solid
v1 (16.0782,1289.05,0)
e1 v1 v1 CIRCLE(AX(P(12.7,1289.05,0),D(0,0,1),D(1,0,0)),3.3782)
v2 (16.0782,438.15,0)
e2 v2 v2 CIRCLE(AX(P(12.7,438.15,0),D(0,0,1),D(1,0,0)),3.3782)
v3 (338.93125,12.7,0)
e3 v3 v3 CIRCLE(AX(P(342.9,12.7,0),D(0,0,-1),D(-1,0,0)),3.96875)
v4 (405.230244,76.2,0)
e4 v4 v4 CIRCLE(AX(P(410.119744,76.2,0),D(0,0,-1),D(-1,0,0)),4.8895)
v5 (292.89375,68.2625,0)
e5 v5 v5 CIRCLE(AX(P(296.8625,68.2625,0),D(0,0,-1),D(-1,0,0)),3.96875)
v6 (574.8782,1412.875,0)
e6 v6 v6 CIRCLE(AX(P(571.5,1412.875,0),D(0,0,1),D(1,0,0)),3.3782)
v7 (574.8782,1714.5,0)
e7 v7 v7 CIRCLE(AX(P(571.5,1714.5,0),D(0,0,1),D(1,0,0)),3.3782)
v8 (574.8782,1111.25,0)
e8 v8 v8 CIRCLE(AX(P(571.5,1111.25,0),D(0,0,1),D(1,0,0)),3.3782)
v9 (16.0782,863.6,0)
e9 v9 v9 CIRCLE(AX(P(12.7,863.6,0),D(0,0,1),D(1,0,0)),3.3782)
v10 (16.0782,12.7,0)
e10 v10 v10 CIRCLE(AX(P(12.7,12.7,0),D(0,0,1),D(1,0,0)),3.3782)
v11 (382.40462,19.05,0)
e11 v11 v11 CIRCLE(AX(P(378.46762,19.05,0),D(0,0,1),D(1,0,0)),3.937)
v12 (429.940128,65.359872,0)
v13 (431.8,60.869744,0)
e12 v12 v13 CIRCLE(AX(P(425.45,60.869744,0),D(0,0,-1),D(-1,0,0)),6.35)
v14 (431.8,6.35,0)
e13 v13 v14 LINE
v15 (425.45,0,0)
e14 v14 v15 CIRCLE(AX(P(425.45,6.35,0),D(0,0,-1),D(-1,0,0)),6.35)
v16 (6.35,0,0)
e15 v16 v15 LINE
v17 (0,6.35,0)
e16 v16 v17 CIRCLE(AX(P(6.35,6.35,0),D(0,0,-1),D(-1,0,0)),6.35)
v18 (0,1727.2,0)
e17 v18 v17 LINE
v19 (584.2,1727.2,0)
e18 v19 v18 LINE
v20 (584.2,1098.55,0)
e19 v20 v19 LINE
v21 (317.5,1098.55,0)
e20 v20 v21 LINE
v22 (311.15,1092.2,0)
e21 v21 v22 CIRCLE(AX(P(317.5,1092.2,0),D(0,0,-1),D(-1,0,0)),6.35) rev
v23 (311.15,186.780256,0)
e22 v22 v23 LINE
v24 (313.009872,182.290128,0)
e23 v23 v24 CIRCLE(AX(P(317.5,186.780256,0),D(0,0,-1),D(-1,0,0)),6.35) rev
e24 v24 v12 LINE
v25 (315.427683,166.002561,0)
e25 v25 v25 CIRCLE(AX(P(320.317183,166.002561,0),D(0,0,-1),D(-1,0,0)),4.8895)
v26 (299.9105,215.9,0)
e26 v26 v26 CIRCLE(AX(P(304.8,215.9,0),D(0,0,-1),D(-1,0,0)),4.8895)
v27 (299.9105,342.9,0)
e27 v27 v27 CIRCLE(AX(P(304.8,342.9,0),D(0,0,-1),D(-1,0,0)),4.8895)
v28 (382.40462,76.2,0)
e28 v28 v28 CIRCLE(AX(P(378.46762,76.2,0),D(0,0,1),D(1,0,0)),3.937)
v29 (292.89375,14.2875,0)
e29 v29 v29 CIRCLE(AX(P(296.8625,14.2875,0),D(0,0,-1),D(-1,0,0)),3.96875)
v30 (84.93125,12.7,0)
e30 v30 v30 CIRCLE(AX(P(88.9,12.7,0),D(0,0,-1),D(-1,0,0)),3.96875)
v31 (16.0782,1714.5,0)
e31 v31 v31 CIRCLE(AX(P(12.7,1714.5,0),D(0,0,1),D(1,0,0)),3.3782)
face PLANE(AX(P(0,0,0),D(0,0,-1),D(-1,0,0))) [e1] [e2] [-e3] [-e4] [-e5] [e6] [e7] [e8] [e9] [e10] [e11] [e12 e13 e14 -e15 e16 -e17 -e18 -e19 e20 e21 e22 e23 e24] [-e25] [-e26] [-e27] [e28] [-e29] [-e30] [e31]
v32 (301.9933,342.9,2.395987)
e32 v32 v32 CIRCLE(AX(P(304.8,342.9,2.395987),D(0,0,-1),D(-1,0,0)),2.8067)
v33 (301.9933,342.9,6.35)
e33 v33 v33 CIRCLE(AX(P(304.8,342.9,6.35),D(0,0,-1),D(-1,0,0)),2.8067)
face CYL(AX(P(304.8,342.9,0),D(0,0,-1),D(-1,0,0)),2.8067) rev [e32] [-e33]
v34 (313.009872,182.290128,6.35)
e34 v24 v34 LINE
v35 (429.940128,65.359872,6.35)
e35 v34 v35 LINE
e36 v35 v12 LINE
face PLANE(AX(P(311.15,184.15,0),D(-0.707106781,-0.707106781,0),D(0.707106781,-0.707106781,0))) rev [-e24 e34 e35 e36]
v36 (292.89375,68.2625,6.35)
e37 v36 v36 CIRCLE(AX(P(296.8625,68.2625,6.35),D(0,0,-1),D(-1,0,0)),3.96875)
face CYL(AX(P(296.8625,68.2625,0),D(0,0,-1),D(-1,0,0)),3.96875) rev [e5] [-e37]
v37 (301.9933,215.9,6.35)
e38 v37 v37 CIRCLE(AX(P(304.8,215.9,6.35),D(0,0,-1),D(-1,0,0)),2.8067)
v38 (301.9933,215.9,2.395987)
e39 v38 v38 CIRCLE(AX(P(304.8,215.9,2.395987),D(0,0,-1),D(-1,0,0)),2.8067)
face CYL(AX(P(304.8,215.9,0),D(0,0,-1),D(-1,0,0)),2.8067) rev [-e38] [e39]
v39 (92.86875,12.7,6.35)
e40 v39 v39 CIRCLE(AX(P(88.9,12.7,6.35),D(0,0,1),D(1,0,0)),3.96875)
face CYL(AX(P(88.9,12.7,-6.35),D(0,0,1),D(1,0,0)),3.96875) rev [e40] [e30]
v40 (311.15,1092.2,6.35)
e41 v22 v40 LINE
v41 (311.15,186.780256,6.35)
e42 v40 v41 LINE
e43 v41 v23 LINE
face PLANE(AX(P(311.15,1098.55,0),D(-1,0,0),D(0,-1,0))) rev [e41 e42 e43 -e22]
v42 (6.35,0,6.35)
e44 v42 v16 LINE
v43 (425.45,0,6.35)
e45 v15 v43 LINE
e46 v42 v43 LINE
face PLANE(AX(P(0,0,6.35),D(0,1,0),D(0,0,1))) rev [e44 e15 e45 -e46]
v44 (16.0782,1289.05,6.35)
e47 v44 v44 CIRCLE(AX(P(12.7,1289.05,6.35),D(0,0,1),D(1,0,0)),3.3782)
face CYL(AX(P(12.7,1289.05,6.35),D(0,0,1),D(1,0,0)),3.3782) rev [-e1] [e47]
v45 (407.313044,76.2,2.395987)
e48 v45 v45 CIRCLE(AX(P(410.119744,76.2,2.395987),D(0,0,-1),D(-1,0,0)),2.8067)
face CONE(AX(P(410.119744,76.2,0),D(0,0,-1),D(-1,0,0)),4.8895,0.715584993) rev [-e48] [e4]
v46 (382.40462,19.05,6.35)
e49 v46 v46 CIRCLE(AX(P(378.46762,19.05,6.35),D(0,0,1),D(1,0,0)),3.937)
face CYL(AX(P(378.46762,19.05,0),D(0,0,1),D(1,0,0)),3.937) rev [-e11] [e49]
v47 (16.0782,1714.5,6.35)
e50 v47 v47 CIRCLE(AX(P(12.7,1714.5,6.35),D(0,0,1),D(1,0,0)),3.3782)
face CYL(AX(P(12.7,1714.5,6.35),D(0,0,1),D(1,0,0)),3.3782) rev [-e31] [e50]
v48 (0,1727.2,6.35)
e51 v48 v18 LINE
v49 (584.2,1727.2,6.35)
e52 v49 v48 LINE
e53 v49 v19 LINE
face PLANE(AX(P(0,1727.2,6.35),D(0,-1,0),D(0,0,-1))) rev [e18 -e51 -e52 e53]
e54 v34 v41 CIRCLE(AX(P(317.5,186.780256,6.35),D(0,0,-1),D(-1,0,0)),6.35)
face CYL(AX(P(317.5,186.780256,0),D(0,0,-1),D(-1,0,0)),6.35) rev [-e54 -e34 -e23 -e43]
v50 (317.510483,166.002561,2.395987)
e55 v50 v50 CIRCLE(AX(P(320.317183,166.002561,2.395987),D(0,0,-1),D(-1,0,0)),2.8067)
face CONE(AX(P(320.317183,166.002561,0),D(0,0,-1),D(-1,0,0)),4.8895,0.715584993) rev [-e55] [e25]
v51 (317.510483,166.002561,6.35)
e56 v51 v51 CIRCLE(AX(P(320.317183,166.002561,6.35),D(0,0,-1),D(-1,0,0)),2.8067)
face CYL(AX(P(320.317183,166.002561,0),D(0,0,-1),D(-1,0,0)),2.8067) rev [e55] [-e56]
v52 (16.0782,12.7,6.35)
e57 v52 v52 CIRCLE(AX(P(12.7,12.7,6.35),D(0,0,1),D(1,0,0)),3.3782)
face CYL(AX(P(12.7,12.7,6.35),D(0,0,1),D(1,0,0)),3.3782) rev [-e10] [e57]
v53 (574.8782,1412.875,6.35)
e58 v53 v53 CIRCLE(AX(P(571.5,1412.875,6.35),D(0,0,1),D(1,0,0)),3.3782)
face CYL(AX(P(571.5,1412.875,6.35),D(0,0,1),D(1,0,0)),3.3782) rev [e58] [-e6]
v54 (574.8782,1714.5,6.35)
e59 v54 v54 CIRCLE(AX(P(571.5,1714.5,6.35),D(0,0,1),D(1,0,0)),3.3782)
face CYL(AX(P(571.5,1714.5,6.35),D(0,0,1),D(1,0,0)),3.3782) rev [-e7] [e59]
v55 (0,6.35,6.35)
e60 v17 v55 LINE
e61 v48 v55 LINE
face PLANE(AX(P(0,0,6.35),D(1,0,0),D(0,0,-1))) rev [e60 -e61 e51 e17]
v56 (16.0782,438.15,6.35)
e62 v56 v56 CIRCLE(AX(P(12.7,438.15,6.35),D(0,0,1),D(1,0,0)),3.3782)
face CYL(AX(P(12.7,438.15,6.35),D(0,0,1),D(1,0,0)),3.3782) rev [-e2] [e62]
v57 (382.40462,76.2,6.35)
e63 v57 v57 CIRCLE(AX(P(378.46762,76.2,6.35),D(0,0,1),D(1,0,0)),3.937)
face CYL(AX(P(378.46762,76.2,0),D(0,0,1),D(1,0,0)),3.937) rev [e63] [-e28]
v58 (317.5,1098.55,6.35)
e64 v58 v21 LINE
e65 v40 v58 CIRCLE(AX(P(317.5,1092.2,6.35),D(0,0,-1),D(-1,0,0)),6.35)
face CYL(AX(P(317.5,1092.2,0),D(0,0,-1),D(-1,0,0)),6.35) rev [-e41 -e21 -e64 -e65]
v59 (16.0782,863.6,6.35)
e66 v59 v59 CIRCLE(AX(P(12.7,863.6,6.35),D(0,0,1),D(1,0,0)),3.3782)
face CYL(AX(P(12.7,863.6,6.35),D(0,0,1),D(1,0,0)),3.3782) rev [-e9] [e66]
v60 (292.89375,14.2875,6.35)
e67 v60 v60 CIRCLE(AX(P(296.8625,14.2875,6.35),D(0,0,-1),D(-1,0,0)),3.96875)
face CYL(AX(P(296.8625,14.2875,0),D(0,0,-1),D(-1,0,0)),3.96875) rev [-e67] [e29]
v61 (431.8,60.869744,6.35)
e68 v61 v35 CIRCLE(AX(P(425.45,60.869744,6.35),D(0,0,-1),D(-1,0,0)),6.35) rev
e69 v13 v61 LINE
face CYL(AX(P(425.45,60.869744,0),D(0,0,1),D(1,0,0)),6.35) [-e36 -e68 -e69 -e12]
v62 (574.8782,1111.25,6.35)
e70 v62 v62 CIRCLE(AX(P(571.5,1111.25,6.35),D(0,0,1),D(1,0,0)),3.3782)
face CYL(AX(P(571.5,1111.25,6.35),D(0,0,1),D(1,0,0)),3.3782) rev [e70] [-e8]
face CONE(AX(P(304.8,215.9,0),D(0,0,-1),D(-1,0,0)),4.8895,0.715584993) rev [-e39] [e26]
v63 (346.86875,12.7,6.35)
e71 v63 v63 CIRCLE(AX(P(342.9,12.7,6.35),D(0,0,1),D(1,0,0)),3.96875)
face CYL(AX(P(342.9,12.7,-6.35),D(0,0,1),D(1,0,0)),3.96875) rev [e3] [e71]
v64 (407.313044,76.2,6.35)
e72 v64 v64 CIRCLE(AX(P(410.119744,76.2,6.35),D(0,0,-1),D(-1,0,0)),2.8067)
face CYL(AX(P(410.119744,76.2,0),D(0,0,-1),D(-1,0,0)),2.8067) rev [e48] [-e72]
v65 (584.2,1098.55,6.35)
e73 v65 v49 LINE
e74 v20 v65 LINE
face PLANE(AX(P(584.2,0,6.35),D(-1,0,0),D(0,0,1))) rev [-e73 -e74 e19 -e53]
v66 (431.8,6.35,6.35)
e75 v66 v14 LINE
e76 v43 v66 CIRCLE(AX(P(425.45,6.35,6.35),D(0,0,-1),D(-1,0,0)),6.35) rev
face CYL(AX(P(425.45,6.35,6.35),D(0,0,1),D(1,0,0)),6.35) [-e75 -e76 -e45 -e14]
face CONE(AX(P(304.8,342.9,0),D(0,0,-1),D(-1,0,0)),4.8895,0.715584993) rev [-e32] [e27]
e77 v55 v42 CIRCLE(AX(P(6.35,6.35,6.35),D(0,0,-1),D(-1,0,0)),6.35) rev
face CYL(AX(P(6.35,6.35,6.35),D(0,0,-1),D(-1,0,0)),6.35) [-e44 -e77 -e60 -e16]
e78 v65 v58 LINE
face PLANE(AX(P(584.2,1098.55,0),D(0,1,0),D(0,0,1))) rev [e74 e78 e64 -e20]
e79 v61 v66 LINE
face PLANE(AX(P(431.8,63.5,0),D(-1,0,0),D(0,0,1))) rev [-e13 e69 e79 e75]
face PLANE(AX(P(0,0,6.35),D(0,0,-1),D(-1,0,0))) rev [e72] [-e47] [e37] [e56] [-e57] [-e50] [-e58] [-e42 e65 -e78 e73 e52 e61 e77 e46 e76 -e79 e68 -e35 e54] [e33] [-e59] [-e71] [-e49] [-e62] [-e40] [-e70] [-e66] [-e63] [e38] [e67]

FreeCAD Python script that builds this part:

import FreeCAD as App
import Part
import Sketcher
Q = App.Units.Quantity


def edges_at(feature, points):
    """Names of the edges that pass closest to the given points."""
    edges = feature.Shape.Edges
    near = lambda p: min(range(len(edges)), key=lambda i: edges[i].distToShape(Part.Vertex(*p))[0])
    return sorted({f"Edge{near(p) + 1}" for p in points})


def add_polygon(sketch, points):
    """Adds a closed chain of lines whose ends are joined by coincident constraints."""
    first, n = sketch.GeometryCount, len(points)
    for a, b in zip(points, points[1:] + points[:1]):
        sketch.addGeometry(Part.LineSegment(App.Vector(*a, 0), App.Vector(*b, 0)), False)
    for i in range(n):
        sketch.addConstraint(Sketcher.Constraint("Coincident", first + i, 2, first + (i + 1) % n, 1))

doc = App.newDocument("Part")
params = doc.addObject("Spreadsheet::Sheet", "Params")
for row, (alias, value) in enumerate([
    ("sketch1_width", "23 in"),
    ("sketch1_height", "68 in"),
    ("pad1_length", "0.25 in"),
    ("sketch2_width", "6 in"),
    ("sketch2_height", "36 in"),
    ("sketch2_height2", "2.5 in"),
    ("sketch2_width2", "10.75 in"),
    ("sketch3_diameter", "0.266 in"),
    ("hole_diameter", "0.266 in"),
    ("fillet_radius", "0.25 in"),
    ("sketch4_diameter", "0.3125 in"),
    ("pocket2_length", "0.5 in"),
    ("sketch5_diameter", "0.221 in"),
    ("hole2_diameter", "0.221 in"),
    ("hole2_csink_diameter", "0.385 in"),
    ("sketch6_diameter", "0.31 in"),
    ("sketch7_diameter", "0.3125 in"),
    ("hole3_diameter", "0.3125 in"),
], start=1):
    params.set(f"A{row}", alias)
    params.set(f"B{row}", "=" + value)
    params.setAlias(f"B{row}", alias)

body = doc.addObject("PartDesign::Body", "Body")

sketch1 = doc.addObject("Sketcher::SketchObject", "Sketch")
body.addObject(sketch1)
sketch1.AttachmentSupport = (doc.XY_Plane, [""])
sketch1.MapMode = "FlatFace"
add_polygon(sketch1, [(0, 1727), (0, 0), (584, 0), (584, 1727)])
sketch1.addConstraint(Sketcher.Constraint("Vertical", 0))
sketch1.addConstraint(Sketcher.Constraint("Horizontal", 1))
sketch1.addConstraint(Sketcher.Constraint("Vertical", 2))
sketch1.addConstraint(Sketcher.Constraint("Horizontal", 3))
sketch1.addConstraint(Sketcher.Constraint("Coincident", 0, 2, -1, 1))
sketch1.addConstraint(Sketcher.Constraint("DistanceX", 1, 1, 1, 2, Q("23 in")))
sketch1.addConstraint(Sketcher.Constraint("DistanceY", 0, 2, 0, 1, Q("68 in")))
sketch1.setExpression("Constraints[9]", "Params.sketch1_width")
sketch1.setExpression("Constraints[10]", "Params.sketch1_height")
pad1 = doc.addObject("PartDesign::Pad", "Pad")
body.addObject(pad1)
pad1.Profile = sketch1
pad1.setExpression("Length", "Params.pad1_length")

sketch2 = doc.addObject("Sketcher::SketchObject", "Sketch001")
body.addObject(sketch2)
sketch2.AttachmentSupport = (doc.XY_Plane, [""])
sketch2.MapMode = "FlatFace"
sketch2.AttachmentOffset = App.Placement(App.Vector(0, 0, 0.25 * 25.4), App.Rotation())
add_polygon(sketch2, [(584, 1099), (311, 1099), (311, 184), (432, 64), (432, 0), (584, 0)])
sketch2.addConstraint(Sketcher.Constraint("Horizontal", 0))
sketch2.addConstraint(Sketcher.Constraint("Vertical", 1))
sketch2.addConstraint(Sketcher.Constraint("Vertical", 3))
sketch2.addConstraint(Sketcher.Constraint("Horizontal", 4))
sketch2.addConstraint(Sketcher.Constraint("Vertical", 5))
sketch2.addConstraint(Sketcher.Constraint("PointOnObject", 3, 2, -1))
sketch2.addConstraint(Sketcher.Constraint("DistanceX", 4, 1, 4, 2, Q("6 in")))
sketch2.addConstraint(Sketcher.Constraint("DistanceY", 1, 2, 1, 1, Q("36 in")))
sketch2.addConstraint(Sketcher.Constraint("DistanceY", 3, 2, 3, 1, Q("2.5 in")))
sketch2.addConstraint(Sketcher.Constraint("DistanceX", -1, 1, 2, 2, Q("17 in")))
sketch2.addConstraint(Sketcher.Constraint("Angle", 2, Q("-45 deg")))
sketch2.addConstraint(Sketcher.Constraint("DistanceX", 0, 2, 0, 1, Q("10.75 in")))
sketch2.setExpression("Constraints[12]", "Params.sketch2_width")
sketch2.setExpression("Constraints[13]", "Params.sketch2_height")
sketch2.setExpression("Constraints[14]", "Params.sketch2_height2")
sketch2.setExpression("Constraints[17]", "Params.sketch2_width2")
pocket1 = doc.addObject("PartDesign::Pocket", "Pocket")
body.addObject(pocket1)
pocket1.Profile = sketch2
pocket1.Type = "ThroughAll"

sketch3 = doc.addObject("Sketcher::SketchObject", "Sketch002")
body.addObject(sketch3)
sketch3.AttachmentSupport = (doc.XY_Plane, [""])
sketch3.MapMode = "FlatFace"
sketch3.AttachmentOffset = App.Placement(App.Vector(0, 0, 0.25 * 25.4), App.Rotation())
sketch3.addGeometry(Part.Circle(App.Vector(12.7, 1714.5, 0), App.Vector(0, 0, 1), 3.4), False)
sketch3.addGeometry(Part.Circle(App.Vector(12.7, 1289, 0), App.Vector(0, 0, 1), 3.4), False)
sketch3.addGeometry(Part.Circle(App.Vector(12.7, 863.6, 0), App.Vector(0, 0, 1), 3.4), False)
sketch3.addGeometry(Part.Circle(App.Vector(12.7, 438.1, 0), App.Vector(0, 0, 1), 3.4), False)
sketch3.addGeometry(Part.Circle(App.Vector(12.7, 12.7, 0), App.Vector(0, 0, 1), 3.4), False)
sketch3.addGeometry(Part.Circle(App.Vector(571.5, 1111.2, 0), App.Vector(0, 0, 1), 3.4), False)
sketch3.addGeometry(Part.Circle(App.Vector(571.5, 1412.9, 0), App.Vector(0, 0, 1), 3.4), False)
sketch3.addGeometry(Part.Circle(App.Vector(571.5, 1714.5, 0), App.Vector(0, 0, 1), 3.4), False)
sketch3.addConstraint(Sketcher.Constraint("Equal", 0, 1))
sketch3.addConstraint(Sketcher.Constraint("Equal", 1, 2))
sketch3.addConstraint(Sketcher.Constraint("Equal", 2, 3))
sketch3.addConstraint(Sketcher.Constraint("Equal", 3, 4))
sketch3.addConstraint(Sketcher.Constraint("Equal", 4, 5))
sketch3.addConstraint(Sketcher.Constraint("Equal", 5, 6))
sketch3.addConstraint(Sketcher.Constraint("Equal", 6, 7))
sketch3.addConstraint(Sketcher.Constraint("Horizontal", 0, 3, 7, 3))
sketch3.addConstraint(Sketcher.Constraint("Vertical", 0, 3, 1, 3))
sketch3.addConstraint(Sketcher.Constraint("Vertical", 1, 3, 2, 3))
sketch3.addConstraint(Sketcher.Constraint("Vertical", 2, 3, 3, 3))
sketch3.addConstraint(Sketcher.Constraint("Vertical", 3, 3, 4, 3))
sketch3.addConstraint(Sketcher.Constraint("Vertical", 5, 3, 6, 3))
sketch3.addConstraint(Sketcher.Constraint("Vertical", 6, 3, 7, 3))
sketch3.addConstraint(Sketcher.Constraint("Diameter", 0, Q("0.266 in")))
sketch3.addConstraint(Sketcher.Constraint("DistanceY", -1, 1, 2, 3, Q("34 in")))
sketch3.addConstraint(Sketcher.Constraint("DistanceY", 4, 3, 0, 3, Q("67 in")))
sketch3.addConstraint(Sketcher.Constraint("DistanceX", 1, 3, 5, 3, Q("22 in")))
sketch3.addConstraint(Sketcher.Constraint("DistanceY", 5, 3, 1, 3, Q("7 in")))
sketch3.addConstraint(Sketcher.Constraint("DistanceX", -1, 1, 0, 3, Q("0.5 in")))
sketch3.addConstraint(Sketcher.Constraint("DistanceY", -1, 1, 0, 3, Q("67.5 in")))
sketch3.addConstraint(Sketcher.Constraint("DistanceY", 3, 3, 1, 3, Q("33.5 in")))
sketch3.addConstraint(Sketcher.Constraint("DistanceY", -1, 1, 1, 3, Q("50.75 in")))
sketch3.addConstraint(Sketcher.Constraint("DistanceY", -1, 1, 6, 3, Q("55.625 in")))
sketch3.setExpression("Constraints[14]", "Params.sketch3_diameter")
doc.recompute()
hole = doc.addObject("PartDesign::Hole", "Hole")
body.addObject(hole)
hole.Profile = sketch3
hole.ThreadType = "None"
hole.setExpression("Diameter", "Params.hole_diameter")
hole.DepthType = "ThroughAll"
doc.recompute()

fillet = doc.addObject("PartDesign::Fillet", "Fillet")
body.addObject(fillet)
fillet.Base = (hole, edges_at(hole, [
    (431.8, 0, 3.175),
    (431.8, 63.5, 3.175),
    (311.15, 184.15, 3.175),
    (311.15, 1098.55, 3.175),
    (0, 0, 3.175),
]))
fillet.setExpression("Radius", "Params.fillet_radius")

sketch4 = doc.addObject("Sketcher::SketchObject", "Sketch003")
body.addObject(sketch4)
sketch4.AttachmentSupport = (doc.XY_Plane, [""])
sketch4.MapMode = "FlatFace"
sketch4.AttachmentOffset = App.Placement(App.Vector(0, 0, 0.25 * 25.4), App.Rotation())
sketch4.addGeometry(Part.Circle(App.Vector(88.9, 12.7, 0), App.Vector(0, 0, 1), 4), False)
sketch4.addGeometry(Part.Circle(App.Vector(342.9, 12.7, 0), App.Vector(0, 0, 1), 4), False)
sketch4.addConstraint(Sketcher.Constraint("Equal", 0, 1))
sketch4.addConstraint(Sketcher.Constraint("Horizontal", 0, 3, 1, 3))
sketch4.addConstraint(Sketcher.Constraint("Diameter", 0, Q("0.3125 in")))
sketch4.addConstraint(Sketcher.Constraint("DistanceX", 0, 3, 1, 3, Q("10 in")))
sketch4.addConstraint(Sketcher.Constraint("DistanceX", -1, 1, 0, 3, Q("3.5 in")))
sketch4.addConstraint(Sketcher.Constraint("DistanceY", -1, 1, 0, 3, Q("0.5 in")))
sketch4.setExpression("Constraints[2]", "Params.sketch4_diameter")
pocket2 = doc.addObject("PartDesign::Pocket", "Pocket001")
body.addObject(pocket2)
pocket2.Profile = sketch4
pocket2.setExpression("Length", "Params.pocket2_length")

sketch5 = doc.addObject("Sketcher::SketchObject", "Sketch004")
body.addObject(sketch5)
sketch5.AttachmentSupport = (doc.XY_Plane, [""])
sketch5.MapMode = "FlatFace"
sketch5.addGeometry(Part.Circle(App.Vector(304.8, 342.9, 0), App.Vector(0, 0, 1), 2.8), False)
sketch5.addGeometry(Part.Circle(App.Vector(304.8, 215.9, 0), App.Vector(0, 0, 1), 2.8), False)
sketch5.addGeometry(Part.Circle(App.Vector(320.3, 166, 0), App.Vector(0, 0, 1), 2.8), False)
sketch5.addGeometry(Part.Circle(App.Vector(410.1, 76.2, 0), App.Vector(0, 0, 1), 2.8), False)
sketch5.addConstraint(Sketcher.Constraint("Equal", 0, 1))
sketch5.addConstraint(Sketcher.Constraint("Equal", 1, 2))
sketch5.addConstraint(Sketcher.Constraint("Equal", 2, 3))
sketch5.addConstraint(Sketcher.Constraint("Vertical", 0, 3, 1, 3))
sketch5.addConstraint(Sketcher.Constraint("Diameter", 0, Q("0.221 in")))
sketch5.addConstraint(Sketcher.Constraint("DistanceX", -1, 1, 0, 3, Q("12 in")))
sketch5.addConstraint(Sketcher.Constraint("DistanceY", -1, 1, 3, 3, Q("3 in")))
sketch5.addConstraint(Sketcher.Constraint("DistanceY", 1, 3, 0, 3, Q("5 in")))
sketch5.addConstraint(Sketcher.Constraint("DistanceY", -1, 1, 0, 3, Q("13.5 in")))
sketch5.addConstraint(Sketcher.Constraint("DistanceY", -1, 1, 2, 3, 166.002561))
sketch5.addConstraint(Sketcher.Constraint("DistanceX", 2, 3, 3, 3, 89.802561))
sketch5.addConstraint(Sketcher.Constraint("DistanceX", -1, 1, 2, 3, 320.317183))
sketch5.setExpression("Constraints[4]", "Params.sketch5_diameter")
doc.recompute()
hole2 = doc.addObject("PartDesign::Hole", "Hole001")
body.addObject(hole2)
hole2.Profile = sketch5
hole2.ThreadType = "None"
hole2.setExpression("Diameter", "Params.hole2_diameter")
hole2.DepthType = "ThroughAll"
hole2.HoleCutType = "Countersink"
hole2.setExpression("HoleCutDiameter", "Params.hole2_csink_diameter")
hole2.HoleCutCountersinkAngle = 82
hole2.Reversed = True

sketch6 = doc.addObject("Sketcher::SketchObject", "Sketch005")
body.addObject(sketch6)
sketch6.AttachmentSupport = (doc.XY_Plane, [""])
sketch6.MapMode = "FlatFace"
sketch6.AttachmentOffset = App.Placement(App.Vector(0, 0, 0.25 * 25.4), App.Rotation())
sketch6.addGeometry(Part.Circle(App.Vector(378.5, 19.1, 0), App.Vector(0, 0, 1), 3.9), False)
sketch6.addGeometry(Part.Circle(App.Vector(378.5, 76.2, 0), App.Vector(0, 0, 1), 3.9), False)
sketch6.addConstraint(Sketcher.Constraint("Equal", 0, 1))
sketch6.addConstraint(Sketcher.Constraint("Vertical", 0, 3, 1, 3))
sketch6.addConstraint(Sketcher.Constraint("Diameter", 0, Q("0.31 in")))
sketch6.addConstraint(Sketcher.Constraint("DistanceY", -1, 1, 1, 3, Q("3 in")))
sketch6.addConstraint(Sketcher.Constraint("DistanceY", -1, 1, 0, 3, Q("0.75 in")))
sketch6.addConstraint(Sketcher.Constraint("DistanceX", -1, 1, 0, 3, Q("14.9003 in")))
sketch6.setExpression("Constraints[2]", "Params.sketch6_diameter")
pocket3 = doc.addObject("PartDesign::Pocket", "Pocket002")
body.addObject(pocket3)
pocket3.Profile = sketch6
pocket3.Type = "ThroughAll"

sketch7 = doc.addObject("Sketcher::SketchObject", "Sketch006")
body.addObject(sketch7)
sketch7.AttachmentSupport = (doc.XY_Plane, [""])
sketch7.MapMode = "FlatFace"
sketch7.addGeometry(Part.Circle(App.Vector(296.9, 68.3, 0), App.Vector(0, 0, 1), 4), False)
sketch7.addGeometry(Part.Circle(App.Vector(296.9, 14.3, 0), App.Vector(0, 0, 1), 4), False)
sketch7.addConstraint(Sketcher.Constraint("Equal", 0, 1))
sketch7.addConstraint(Sketcher.Constraint("Vertical", 0, 3, 1, 3))
sketch7.addConstraint(Sketcher.Constraint("Diameter", 0, Q("0.3125 in")))
sketch7.addConstraint(Sketcher.Constraint("DistanceX", -1, 1, 0, 3, Q("11.6875 in")))
sketch7.addConstraint(Sketcher.Constraint("DistanceY", -1, 1, 0, 3, Q("2.6875 in")))
sketch7.addConstraint(Sketcher.Constraint("DistanceY", -1, 1, 1, 3, Q("0.5625 in")))
sketch7.setExpression("Constraints[2]", "Params.sketch7_diameter")
doc.recompute()
hole3 = doc.addObject("PartDesign::Hole", "Hole002")
body.addObject(hole3)
hole3.Profile = sketch7
hole3.ThreadType = "None"
hole3.setExpression("Diameter", "Params.hole3_diameter")
hole3.DepthType = "ThroughAll"
hole3.Reversed = True

doc.recompute()
